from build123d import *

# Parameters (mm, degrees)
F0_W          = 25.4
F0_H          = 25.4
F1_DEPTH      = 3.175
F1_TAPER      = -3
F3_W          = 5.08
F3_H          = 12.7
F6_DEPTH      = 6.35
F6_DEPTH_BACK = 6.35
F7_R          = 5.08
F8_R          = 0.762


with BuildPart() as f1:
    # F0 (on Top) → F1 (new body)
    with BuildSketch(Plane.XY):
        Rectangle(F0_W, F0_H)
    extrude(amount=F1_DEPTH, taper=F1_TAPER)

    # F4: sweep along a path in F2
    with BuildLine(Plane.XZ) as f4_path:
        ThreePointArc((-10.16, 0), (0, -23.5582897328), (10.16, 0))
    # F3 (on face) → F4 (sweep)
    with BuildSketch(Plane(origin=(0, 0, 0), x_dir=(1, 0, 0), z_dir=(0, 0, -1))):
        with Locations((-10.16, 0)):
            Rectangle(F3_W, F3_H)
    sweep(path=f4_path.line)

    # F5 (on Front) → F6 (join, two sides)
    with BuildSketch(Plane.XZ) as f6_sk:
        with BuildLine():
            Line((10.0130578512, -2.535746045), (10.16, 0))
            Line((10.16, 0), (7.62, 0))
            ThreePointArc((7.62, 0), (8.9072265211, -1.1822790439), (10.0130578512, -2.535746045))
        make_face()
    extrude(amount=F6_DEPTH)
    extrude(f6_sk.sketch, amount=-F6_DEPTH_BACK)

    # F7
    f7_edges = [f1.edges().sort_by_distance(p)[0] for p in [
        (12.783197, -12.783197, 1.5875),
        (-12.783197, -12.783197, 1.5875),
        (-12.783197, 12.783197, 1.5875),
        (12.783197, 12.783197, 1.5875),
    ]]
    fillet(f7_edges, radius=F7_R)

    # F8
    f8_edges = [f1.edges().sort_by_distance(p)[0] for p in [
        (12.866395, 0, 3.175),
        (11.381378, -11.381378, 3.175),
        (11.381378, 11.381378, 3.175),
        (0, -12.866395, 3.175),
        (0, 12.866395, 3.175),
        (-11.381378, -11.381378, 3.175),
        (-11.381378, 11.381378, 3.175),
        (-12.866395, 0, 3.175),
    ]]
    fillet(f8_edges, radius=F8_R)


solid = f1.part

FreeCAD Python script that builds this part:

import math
import FreeCAD as App
import Part
import Sketcher
Q = App.Units.Quantity


def edges_at(feature, points):
    """Names of the edges that pass closest to the given points."""
    edges = feature.Shape.Edges
    near = lambda p: min(range(len(edges)), key=lambda i: edges[i].distToShape(Part.Vertex(*p))[0])
    return sorted({f"Edge{near(p) + 1}" for p in points})

doc = App.newDocument("Part")
body = doc.addObject("PartDesign::Body", "Body")

# Sketch on XY plane
sketch1 = body.newObject("Sketcher::SketchObject", "Sketch")
sketch1.AttachmentSupport = (doc.getObject("XY_Plane"), [""])
sketch1.MapMode = "FlatFace"
sketch1.addGeometry([
    Part.LineSegment(App.Vector(-13, 13, 0), App.Vector(-13, -13, 0)),
    Part.LineSegment(App.Vector(-13, -13, 0), App.Vector(13, -13, 0)),
    Part.LineSegment(App.Vector(13, -13, 0), App.Vector(13, 13, 0)),
    Part.LineSegment(App.Vector(13, 13, 0), App.Vector(-13, 13, 0)),
], False)
sketch1.addConstraint([
    Sketcher.Constraint("Coincident", 0, 2, 1, 1),
    Sketcher.Constraint("Coincident", 1, 2, 2, 1),
    Sketcher.Constraint("Coincident", 2, 2, 3, 1),
    Sketcher.Constraint("Coincident", 3, 2, 0, 1),
    Sketcher.Constraint("Vertical", 0),
    Sketcher.Constraint("Horizontal", 1),
    Sketcher.Constraint("Vertical", 2),
    Sketcher.Constraint("Horizontal", 3),
    Sketcher.Constraint("Symmetric", 0, 2, 2, 2, -1, 1),
    Sketcher.Constraint("Equal", 3, 0),
    Sketcher.Constraint("DistanceX", 1, 1, 1, 2, Q("1 in")),
])
pad1 = body.newObject("PartDesign::Pad", "Pad")
pad1.Profile = sketch1
pad1.Length = Q("0.125 in")
pad1.TaperAngle = 3

# Sketch on XY plane
sketch2 = body.newObject("Sketcher::SketchObject", "Sketch001")
sketch2.AttachmentSupport = (doc.getObject("XY_Plane"), [""])
sketch2.MapMode = "FlatFace"
sketch2.addGeometry([
    Part.LineSegment(App.Vector(-13, -6, 0), App.Vector(-13, 6, 0)),
    Part.LineSegment(App.Vector(-13, 6, 0), App.Vector(-8, 6, 0)),
    Part.LineSegment(App.Vector(-8, 6, 0), App.Vector(-8, -6, 0)),
    Part.LineSegment(App.Vector(-8, -6, 0), App.Vector(-13, -6, 0)),
], False)
sketch2.addConstraint([
    Sketcher.Constraint("Coincident", 0, 2, 1, 1),
    Sketcher.Constraint("Coincident", 1, 2, 2, 1),
    Sketcher.Constraint("Coincident", 2, 2, 3, 1),
    Sketcher.Constraint("Coincident", 3, 2, 0, 1),
    Sketcher.Constraint("Vertical", 0),
    Sketcher.Constraint("Horizontal", 1),
    Sketcher.Constraint("Vertical", 2),
    Sketcher.Constraint("Horizontal", 3),
    Sketcher.Constraint("DistanceX", 1, 1, 1, 2, Q("0.2 in")),
    Sketcher.Constraint("DistanceY", 0, 1, 0, 2, Q("0.5 in")),
    Sketcher.Constraint("DistanceX", 0, 2, -1, 1, Q("0.5 in")),
    Sketcher.Constraint("DistanceY", -1, 1, 0, 2, Q("0.25 in")),
])

# Sketch on XZ plane
sketch3 = body.newObject("Sketcher::SketchObject", "Sketch002")
sketch3.AttachmentSupport = (doc.getObject("XZ_Plane"), [""])
sketch3.MapMode = "FlatFace"
sketch3.addGeometry(Part.ArcOfCircle(Part.Circle(App.Vector(0, -10, 0), App.Vector(0, 0, 1), 14), math.radians(137), math.radians(403)), False)
sketch3.addConstraint([
    Sketcher.Constraint("Symmetric", 0, 1, 0, 2, -1, 1),
    Sketcher.Constraint("PointOnObject", 0, 3, -2),
    Sketcher.Constraint("Radius", 0, Q("0.55 in")),
    Sketcher.Constraint("DistanceX", 0, 1, -1, 1, Q("0.4 in")),
])
doc.recompute()

additivepipe = body.newObject("PartDesign::AdditivePipe", "AdditivePipe")
additivepipe.Profile = sketch2
additivepipe.Spine = (sketch3, ["Edge1"])

# Sketch on XZ plane
sketch4 = body.newObject("Sketcher::SketchObject", "Sketch003")
sketch4.AttachmentSupport = (doc.getObject("XZ_Plane"), [""])
sketch4.MapMode = "FlatFace"
sketch4.addGeometry([
    Part.LineSegment(App.Vector(10, -2.5, 0), App.Vector(10.2, 0, 0)),
    Part.LineSegment(App.Vector(10.2, 0, 0), App.Vector(7.6, 0, 0)),
    Part.ArcOfCircle(Part.Circle(App.Vector(0, -9.6, 0), App.Vector(0, 0, 1), 12.2), math.radians(35.16), math.radians(51.53)),
], False)
sketch4.addConstraint([
    Sketcher.Constraint("Coincident", 0, 2, 1, 1),
    Sketcher.Constraint("Coincident", 1, 2, 2, 2),
    Sketcher.Constraint("Coincident", 2, 1, 0, 1),
    Sketcher.Constraint("Horizontal", 1),
    Sketcher.Constraint("PointOnObject", 2, 3, -2),
    Sketcher.Constraint("PointOnObject", 0, 2, -1),
    Sketcher.Constraint("DistanceX", 1, 2, 1, 1, Q("0.1 in")),
    Sketcher.Constraint("Distance", 0, Q("0.1 in")),
    Sketcher.Constraint("DistanceX", -1, 1, 0, 2, Q("0.4 in")),
    Sketcher.Constraint("Radius", 2, Q("12.247436 mm")),
])
pad2 = body.newObject("PartDesign::Pad", "Pad001")
pad2.Profile = sketch4
pad2.Type = "TwoLengths"
pad2.Length = Q("0.25 in")
pad2.Length2 = Q("0.25 in")
doc.recompute()

fillet = body.newObject("PartDesign::Fillet", "Fillet")
fillet.Base = (pad2, edges_at(pad2, [
    (12.783, -12.783, 1.587),
    (-12.783, -12.783, 1.587),
    (-12.783, 12.783, 1.587),
    (12.783, 12.783, 1.587),
]))
fillet.Radius = Q("0.2 in")
doc.recompute()

fillet2 = body.newObject("PartDesign::Fillet", "Fillet001")
fillet2.Base = (fillet, edges_at(fillet, [
    (12.866, 0, 3.175),
    (11.381, -11.381, 3.175),
    (11.381, 11.381, 3.175),
    (0, -12.866, 3.175),
    (0, 12.866, 3.175),
    (-11.381, -11.381, 3.175),
    (-11.381, 11.381, 3.175),
    (-12.866, 0, 3.175),
]))
fillet2.Radius = Q("0.03 in")

doc.recompute()
